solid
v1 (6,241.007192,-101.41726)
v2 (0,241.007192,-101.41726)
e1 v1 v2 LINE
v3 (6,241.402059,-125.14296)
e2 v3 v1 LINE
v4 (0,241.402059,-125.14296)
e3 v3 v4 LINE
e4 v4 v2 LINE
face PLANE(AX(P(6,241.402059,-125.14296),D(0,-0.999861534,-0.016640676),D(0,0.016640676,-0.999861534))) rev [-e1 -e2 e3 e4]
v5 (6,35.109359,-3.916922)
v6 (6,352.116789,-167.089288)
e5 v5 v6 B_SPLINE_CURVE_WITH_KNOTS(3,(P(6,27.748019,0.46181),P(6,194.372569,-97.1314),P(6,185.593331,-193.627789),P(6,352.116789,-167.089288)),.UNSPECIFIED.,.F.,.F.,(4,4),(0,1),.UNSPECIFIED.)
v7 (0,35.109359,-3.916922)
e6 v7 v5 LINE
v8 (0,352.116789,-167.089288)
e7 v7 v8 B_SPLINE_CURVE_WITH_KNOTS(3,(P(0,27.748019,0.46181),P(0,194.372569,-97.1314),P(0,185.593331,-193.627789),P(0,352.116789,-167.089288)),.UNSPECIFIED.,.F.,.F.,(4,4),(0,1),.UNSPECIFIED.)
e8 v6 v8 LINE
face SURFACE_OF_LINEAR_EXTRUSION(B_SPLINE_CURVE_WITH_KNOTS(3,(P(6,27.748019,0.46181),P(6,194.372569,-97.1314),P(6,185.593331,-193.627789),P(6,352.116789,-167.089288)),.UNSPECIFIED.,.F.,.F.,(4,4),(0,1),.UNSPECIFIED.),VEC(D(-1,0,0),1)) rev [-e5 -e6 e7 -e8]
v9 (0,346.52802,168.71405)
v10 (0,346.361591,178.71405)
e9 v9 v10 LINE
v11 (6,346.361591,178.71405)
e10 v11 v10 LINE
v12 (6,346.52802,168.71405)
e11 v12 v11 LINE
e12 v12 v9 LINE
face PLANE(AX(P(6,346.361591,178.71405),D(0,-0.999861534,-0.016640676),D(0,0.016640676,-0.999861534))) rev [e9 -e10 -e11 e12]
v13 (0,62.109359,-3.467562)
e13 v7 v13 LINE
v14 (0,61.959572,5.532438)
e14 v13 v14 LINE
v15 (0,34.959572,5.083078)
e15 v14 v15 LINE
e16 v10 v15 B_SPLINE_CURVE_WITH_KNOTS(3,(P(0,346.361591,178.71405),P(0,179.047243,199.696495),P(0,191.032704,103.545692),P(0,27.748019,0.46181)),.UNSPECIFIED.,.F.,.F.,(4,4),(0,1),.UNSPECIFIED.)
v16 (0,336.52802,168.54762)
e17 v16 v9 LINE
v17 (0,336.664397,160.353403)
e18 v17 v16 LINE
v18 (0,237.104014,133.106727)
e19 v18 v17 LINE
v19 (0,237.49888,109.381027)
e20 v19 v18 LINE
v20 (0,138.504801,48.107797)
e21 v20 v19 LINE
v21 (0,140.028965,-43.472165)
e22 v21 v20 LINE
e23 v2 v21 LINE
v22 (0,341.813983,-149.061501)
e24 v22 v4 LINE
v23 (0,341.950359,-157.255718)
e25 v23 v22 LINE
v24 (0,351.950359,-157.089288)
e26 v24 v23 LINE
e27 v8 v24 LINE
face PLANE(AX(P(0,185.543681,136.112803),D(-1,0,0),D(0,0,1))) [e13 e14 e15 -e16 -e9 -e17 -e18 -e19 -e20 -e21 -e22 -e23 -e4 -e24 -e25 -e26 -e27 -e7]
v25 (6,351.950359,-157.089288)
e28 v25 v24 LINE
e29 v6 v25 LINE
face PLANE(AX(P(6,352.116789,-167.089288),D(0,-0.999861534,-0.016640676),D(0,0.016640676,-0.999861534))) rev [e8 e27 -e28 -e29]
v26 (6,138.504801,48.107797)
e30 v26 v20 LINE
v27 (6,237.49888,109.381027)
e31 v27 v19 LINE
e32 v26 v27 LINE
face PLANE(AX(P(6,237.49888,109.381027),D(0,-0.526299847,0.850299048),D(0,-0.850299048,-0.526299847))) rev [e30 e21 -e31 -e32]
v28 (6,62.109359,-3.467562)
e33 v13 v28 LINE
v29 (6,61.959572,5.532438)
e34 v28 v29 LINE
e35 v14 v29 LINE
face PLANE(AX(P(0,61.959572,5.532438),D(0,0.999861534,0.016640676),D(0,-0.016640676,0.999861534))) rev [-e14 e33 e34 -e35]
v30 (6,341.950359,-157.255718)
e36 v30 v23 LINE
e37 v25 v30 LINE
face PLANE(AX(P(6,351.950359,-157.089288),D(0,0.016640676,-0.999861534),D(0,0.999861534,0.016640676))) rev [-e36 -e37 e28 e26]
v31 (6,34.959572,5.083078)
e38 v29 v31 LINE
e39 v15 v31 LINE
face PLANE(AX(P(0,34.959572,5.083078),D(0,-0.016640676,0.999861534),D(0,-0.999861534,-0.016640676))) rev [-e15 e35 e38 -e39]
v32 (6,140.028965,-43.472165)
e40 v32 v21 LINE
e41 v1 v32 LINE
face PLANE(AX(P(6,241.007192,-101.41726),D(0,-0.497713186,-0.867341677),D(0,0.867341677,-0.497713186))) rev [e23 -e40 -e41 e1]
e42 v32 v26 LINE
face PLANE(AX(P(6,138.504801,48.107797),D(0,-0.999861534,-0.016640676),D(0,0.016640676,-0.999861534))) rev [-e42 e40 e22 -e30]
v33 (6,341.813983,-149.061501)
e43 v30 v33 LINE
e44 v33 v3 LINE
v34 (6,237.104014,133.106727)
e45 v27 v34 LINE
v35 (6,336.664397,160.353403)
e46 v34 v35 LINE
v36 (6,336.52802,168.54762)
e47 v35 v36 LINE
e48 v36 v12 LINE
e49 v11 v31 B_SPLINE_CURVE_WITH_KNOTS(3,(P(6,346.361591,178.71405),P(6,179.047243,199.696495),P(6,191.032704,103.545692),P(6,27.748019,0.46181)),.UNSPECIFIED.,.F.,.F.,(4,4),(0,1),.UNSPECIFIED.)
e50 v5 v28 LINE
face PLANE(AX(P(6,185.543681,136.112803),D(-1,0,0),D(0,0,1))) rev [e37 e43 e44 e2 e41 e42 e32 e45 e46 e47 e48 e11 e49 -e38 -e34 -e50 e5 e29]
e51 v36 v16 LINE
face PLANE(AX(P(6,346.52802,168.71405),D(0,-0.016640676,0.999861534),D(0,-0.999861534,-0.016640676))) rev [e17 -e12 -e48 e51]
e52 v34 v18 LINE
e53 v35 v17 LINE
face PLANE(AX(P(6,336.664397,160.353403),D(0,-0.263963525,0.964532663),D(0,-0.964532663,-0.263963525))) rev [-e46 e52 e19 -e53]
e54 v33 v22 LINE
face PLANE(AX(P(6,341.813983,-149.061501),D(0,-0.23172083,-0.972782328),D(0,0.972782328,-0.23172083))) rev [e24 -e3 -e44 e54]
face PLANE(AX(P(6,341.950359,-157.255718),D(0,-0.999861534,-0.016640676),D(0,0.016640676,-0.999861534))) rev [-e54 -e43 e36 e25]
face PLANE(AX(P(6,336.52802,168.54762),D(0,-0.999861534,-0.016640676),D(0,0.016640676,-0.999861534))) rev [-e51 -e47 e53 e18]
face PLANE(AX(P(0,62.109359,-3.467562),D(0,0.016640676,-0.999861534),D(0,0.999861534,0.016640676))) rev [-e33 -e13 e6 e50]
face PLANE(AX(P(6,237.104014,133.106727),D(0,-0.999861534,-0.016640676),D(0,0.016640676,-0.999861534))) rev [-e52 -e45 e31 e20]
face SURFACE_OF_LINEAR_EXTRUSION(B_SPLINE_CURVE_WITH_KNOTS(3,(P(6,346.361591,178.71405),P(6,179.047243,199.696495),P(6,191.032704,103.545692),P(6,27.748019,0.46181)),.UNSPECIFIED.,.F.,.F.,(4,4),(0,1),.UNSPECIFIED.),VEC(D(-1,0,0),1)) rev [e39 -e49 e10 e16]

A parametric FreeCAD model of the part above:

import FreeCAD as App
import Part
import Sketcher
from FreeCAD import Vector
Q = App.Units.Quantity


def add_polygon(sketch, points):
    """Adds a closed chain of lines whose ends are joined by coincident constraints."""
    first, n = sketch.GeometryCount, len(points)
    for a, b in zip(points, points[1:] + points[:1]):
        sketch.addGeometry(Part.LineSegment(App.Vector(*a, 0), App.Vector(*b, 0)), False)
    for i in range(n):
        sketch.addConstraint(Sketcher.Constraint("Coincident", first + i, 2, first + (i + 1) % n, 1))

doc = App.newDocument("Part")
body = doc.addObject("PartDesign::Body", "Body")

# Sketch on YZ plane
sketch1 = body.newObject("Sketcher::SketchObject", "Sketch")
sketch1.AttachmentSupport = (doc.getObject("YZ_Plane"), [""])
sketch1.MapMode = "FlatFace"
sketch1.addGeometry(Part.LineSegment(Vector(346.52802, 168.71405, 0), Vector(346.361591, 178.71405, 0)), False)
sketch1.addGeometry(Part.BSplineCurve([Vector(346.361591, 178.71405, 0), Vector(179.047243, 199.696495, 0), Vector(191.032704, 103.545692, 0), Vector(27.748019, 0.46181, 0)], [4, 4], [0, 1], False, 3, [1, 1, 1, 1], False), False)
sketch1.addGeometry(Part.BSplineCurve([Vector(352.116789, -167.089288, 0), Vector(185.593331, -193.627789, 0), Vector(194.372569, -97.1314, 0), Vector(27.748019, 0.46181, 0)], [4, 4], [0, 1], False, 3, [1, 1, 1, 1], False), False)
sketch1.addGeometry(Part.LineSegment(Vector(352.116789, -167.089288, 0), Vector(351.950359, -157.089288, 0)), False)
sketch1.addGeometry(Part.LineSegment(Vector(351.950359, -157.089288, 0), Vector(341.950359, -157.255718, 0)), False)
sketch1.addGeometry(Part.LineSegment(Vector(341.950359, -157.255718, 0), Vector(341.813983, -149.061501, 0)), False)
sketch1.addGeometry(Part.LineSegment(Vector(341.813983, -149.061501, 0), Vector(241.402059, -125.14296, 0)), False)
sketch1.addGeometry(Part.LineSegment(Vector(241.402059, -125.14296, 0), Vector(241.007192, -101.41726, 0)), False)
sketch1.addGeometry(Part.LineSegment(Vector(241.007192, -101.41726, 0), Vector(140.028965, -43.472165, 0)), False)
sketch1.addGeometry(Part.LineSegment(Vector(140.028965, -43.472165, 0), Vector(138.504801, 48.107797, 0)), False)
sketch1.addGeometry(Part.LineSegment(Vector(138.504801, 48.107797, 0), Vector(237.49888, 109.381027, 0)), False)
sketch1.addGeometry(Part.LineSegment(Vector(237.49888, 109.381027, 0), Vector(237.104014, 133.106727, 0)), False)
sketch1.addGeometry(Part.LineSegment(Vector(237.104014, 133.106727, 0), Vector(336.664397, 160.353403, 0)), False)
sketch1.addGeometry(Part.LineSegment(Vector(336.664397, 160.353403, 0), Vector(336.52802, 168.54762, 0)), False)
sketch1.addGeometry(Part.LineSegment(Vector(336.52802, 168.54762, 0), Vector(346.52802, 168.71405, 0)), False)
sketch1.addConstraint(Sketcher.Constraint("Block", 1))
sketch1.addConstraint(Sketcher.Constraint("Block", 2))
sketch1.addConstraint(Sketcher.Constraint("Coincident", 0, 2, 1, 1))
sketch1.addConstraint(Sketcher.Constraint("Coincident", 2, 1, 3, 1))
sketch1.addConstraint(Sketcher.Constraint("Coincident", 3, 2, 4, 1))
sketch1.addConstraint(Sketcher.Constraint("Coincident", 4, 2, 5, 1))
sketch1.addConstraint(Sketcher.Constraint("Coincident", 5, 2, 6, 1))
sketch1.addConstraint(Sketcher.Constraint("Coincident", 6, 2, 7, 1))
sketch1.addConstraint(Sketcher.Constraint("Coincident", 7, 2, 8, 1))
sketch1.addConstraint(Sketcher.Constraint("Coincident", 8, 2, 9, 1))
sketch1.addConstraint(Sketcher.Constraint("Coincident", 9, 2, 10, 1))
sketch1.addConstraint(Sketcher.Constraint("Coincident", 10, 2, 11, 1))
sketch1.addConstraint(Sketcher.Constraint("Coincident", 11, 2, 12, 1))
sketch1.addConstraint(Sketcher.Constraint("Coincident", 12, 2, 13, 1))
sketch1.addConstraint(Sketcher.Constraint("Coincident", 13, 2, 14, 1))
sketch1.addConstraint(Sketcher.Constraint("Coincident", 14, 2, 0, 1))
sketch1.addConstraint(Sketcher.Constraint("DistanceX", 4, 2, 3, 2, Q("10 mm")))
sketch1.addConstraint(Sketcher.Constraint("DistanceY", 14, 2, 0, 2, Q("10 mm")))
sketch1.addConstraint(Sketcher.Constraint("DistanceX", 13, 2, 14, 2, Q("10 mm")))
sketch1.addConstraint(Sketcher.Constraint("DistanceY", 5, 2, -1, 1, Q("149.061501 mm")))
sketch1.addConstraint(Sketcher.Constraint("DistanceX", -1, 1, 9, 2, Q("138.504801 mm")))
sketch1.addConstraint(Sketcher.Constraint("DistanceX", 6, 2, 4, 2, Q("100.5483 mm")))
sketch1.addConstraint(Sketcher.Constraint("DistanceY", 6, 2, 7, 2, Q("23.7257 mm")))
sketch1.addConstraint(Sketcher.Constraint("DistanceX", 7, 2, 0, 2, Q("105.354398 mm")))
sketch1.addConstraint(Sketcher.Constraint("DistanceY", 5, 2, 9, 2, Q("197.169299 mm")))
sketch1.addConstraint(Sketcher.Constraint("DistanceY", 10, 2, 11, 2, Q("23.7257 mm")))
sketch1.addConstraint(Sketcher.Constraint("Distance", 5, Q("8.195351 mm")))
sketch1.addConstraint(Sketcher.Constraint("Distance", 6, Q("103.22137 mm")))
sketch1.addConstraint(Sketcher.Constraint("Distance", 12, Q("103.22137 mm")))
sketch1.addConstraint(Sketcher.Constraint("Distance", 13, Q("8.195351 mm")))
sketch1.addConstraint(Sketcher.Constraint("DistanceX", -1, 1, 3, 2, Q("351.950359 mm")))
sketch1.addConstraint(Sketcher.Constraint("DistanceY", 6, 2, -1, 1, Q("125.14296 mm")))
sketch1.addConstraint(Sketcher.Constraint("DistanceX", -1, 1, 10, 2, Q("237.49888 mm")))
sketch1.addConstraint(Sketcher.Constraint("DistanceX", -1, 1, 13, 2, Q("336.52802 mm")))
sketch1.addConstraint(Sketcher.Constraint("DistanceY", -1, 1, 13, 2, Q("168.54762 mm")))
sketch1.addConstraint(Sketcher.Constraint("DistanceY", 4, 2, 3, 2, Q("0.16643 mm")))
sketch1.addConstraint(Sketcher.Constraint("DistanceX", 8, 2, 5, 2, Q("201.785018 mm")))
sketch1.addConstraint(Sketcher.Constraint("DistanceY", 9, 2, 10, 2, Q("61.27323 mm")))
sketch1.addConstraint(Sketcher.Constraint("DistanceX", 8, 2, 11, 2, Q("97.075049 mm")))
sketch1.addConstraint(Sketcher.Constraint("Distance", 8, Q("116.422663 mm")))
pad1 = body.newObject("PartDesign::Pad", "Pad")
pad1.Profile = sketch1
pad1.Length = 6

# Sketch on YZ plane
sketch2 = body.newObject("Sketcher::SketchObject", "Sketch001")
sketch2.AttachmentSupport = (doc.getObject("YZ_Plane"), [""])
sketch2.MapMode = "FlatFace"
sketch2.AttachmentOffset = App.Placement(Vector(0, 0, 6), App.Rotation())
add_polygon(sketch2, [(62, 6), (35, 5), (19, 17), (19, -20), (35, -4), (62, -3)])  # lines 0-5
sketch2.addConstraint(Sketcher.Constraint("Vertical", 2))
sketch2.addConstraint(Sketcher.Constraint("Parallel", 0, 4))
sketch2.addConstraint(Sketcher.Constraint("Perpendicular", 4, 5))
sketch2.addConstraint(Sketcher.Constraint("Equal", 0, 4))
sketch2.addConstraint(Sketcher.Constraint("DistanceY", 3, 2, 0, 2, Q("9 mm")))
sketch2.addConstraint(Sketcher.Constraint("DistanceX", 3, 2, 4, 2, Q("27 mm")))
sketch2.addConstraint(Sketcher.Constraint("DistanceY", 2, 2, 2, 1, Q("36.166291 mm")))
sketch2.addConstraint(Sketcher.Constraint("Distance", 0, Q("27.003739 mm")))
sketch2.addConstraint(Sketcher.Constraint("Distance", 3, Q("22.588438 mm")))
sketch2.addConstraint(Sketcher.Constraint("DistanceX", -1, 1, 1, 2, Q("18.873128 mm")))
sketch2.addConstraint(Sketcher.Constraint("DistanceX", -1, 1, 3, 2, Q("35.109359 mm")))
sketch2.addConstraint(Sketcher.Constraint("DistanceY", 4, 2, -1, 1, Q("3.467562 mm")))
pocket1 = body.newObject("PartDesign::Pocket", "Pocket")
pocket1.Profile = sketch2
pocket1.Length = 6

doc.recompute()
